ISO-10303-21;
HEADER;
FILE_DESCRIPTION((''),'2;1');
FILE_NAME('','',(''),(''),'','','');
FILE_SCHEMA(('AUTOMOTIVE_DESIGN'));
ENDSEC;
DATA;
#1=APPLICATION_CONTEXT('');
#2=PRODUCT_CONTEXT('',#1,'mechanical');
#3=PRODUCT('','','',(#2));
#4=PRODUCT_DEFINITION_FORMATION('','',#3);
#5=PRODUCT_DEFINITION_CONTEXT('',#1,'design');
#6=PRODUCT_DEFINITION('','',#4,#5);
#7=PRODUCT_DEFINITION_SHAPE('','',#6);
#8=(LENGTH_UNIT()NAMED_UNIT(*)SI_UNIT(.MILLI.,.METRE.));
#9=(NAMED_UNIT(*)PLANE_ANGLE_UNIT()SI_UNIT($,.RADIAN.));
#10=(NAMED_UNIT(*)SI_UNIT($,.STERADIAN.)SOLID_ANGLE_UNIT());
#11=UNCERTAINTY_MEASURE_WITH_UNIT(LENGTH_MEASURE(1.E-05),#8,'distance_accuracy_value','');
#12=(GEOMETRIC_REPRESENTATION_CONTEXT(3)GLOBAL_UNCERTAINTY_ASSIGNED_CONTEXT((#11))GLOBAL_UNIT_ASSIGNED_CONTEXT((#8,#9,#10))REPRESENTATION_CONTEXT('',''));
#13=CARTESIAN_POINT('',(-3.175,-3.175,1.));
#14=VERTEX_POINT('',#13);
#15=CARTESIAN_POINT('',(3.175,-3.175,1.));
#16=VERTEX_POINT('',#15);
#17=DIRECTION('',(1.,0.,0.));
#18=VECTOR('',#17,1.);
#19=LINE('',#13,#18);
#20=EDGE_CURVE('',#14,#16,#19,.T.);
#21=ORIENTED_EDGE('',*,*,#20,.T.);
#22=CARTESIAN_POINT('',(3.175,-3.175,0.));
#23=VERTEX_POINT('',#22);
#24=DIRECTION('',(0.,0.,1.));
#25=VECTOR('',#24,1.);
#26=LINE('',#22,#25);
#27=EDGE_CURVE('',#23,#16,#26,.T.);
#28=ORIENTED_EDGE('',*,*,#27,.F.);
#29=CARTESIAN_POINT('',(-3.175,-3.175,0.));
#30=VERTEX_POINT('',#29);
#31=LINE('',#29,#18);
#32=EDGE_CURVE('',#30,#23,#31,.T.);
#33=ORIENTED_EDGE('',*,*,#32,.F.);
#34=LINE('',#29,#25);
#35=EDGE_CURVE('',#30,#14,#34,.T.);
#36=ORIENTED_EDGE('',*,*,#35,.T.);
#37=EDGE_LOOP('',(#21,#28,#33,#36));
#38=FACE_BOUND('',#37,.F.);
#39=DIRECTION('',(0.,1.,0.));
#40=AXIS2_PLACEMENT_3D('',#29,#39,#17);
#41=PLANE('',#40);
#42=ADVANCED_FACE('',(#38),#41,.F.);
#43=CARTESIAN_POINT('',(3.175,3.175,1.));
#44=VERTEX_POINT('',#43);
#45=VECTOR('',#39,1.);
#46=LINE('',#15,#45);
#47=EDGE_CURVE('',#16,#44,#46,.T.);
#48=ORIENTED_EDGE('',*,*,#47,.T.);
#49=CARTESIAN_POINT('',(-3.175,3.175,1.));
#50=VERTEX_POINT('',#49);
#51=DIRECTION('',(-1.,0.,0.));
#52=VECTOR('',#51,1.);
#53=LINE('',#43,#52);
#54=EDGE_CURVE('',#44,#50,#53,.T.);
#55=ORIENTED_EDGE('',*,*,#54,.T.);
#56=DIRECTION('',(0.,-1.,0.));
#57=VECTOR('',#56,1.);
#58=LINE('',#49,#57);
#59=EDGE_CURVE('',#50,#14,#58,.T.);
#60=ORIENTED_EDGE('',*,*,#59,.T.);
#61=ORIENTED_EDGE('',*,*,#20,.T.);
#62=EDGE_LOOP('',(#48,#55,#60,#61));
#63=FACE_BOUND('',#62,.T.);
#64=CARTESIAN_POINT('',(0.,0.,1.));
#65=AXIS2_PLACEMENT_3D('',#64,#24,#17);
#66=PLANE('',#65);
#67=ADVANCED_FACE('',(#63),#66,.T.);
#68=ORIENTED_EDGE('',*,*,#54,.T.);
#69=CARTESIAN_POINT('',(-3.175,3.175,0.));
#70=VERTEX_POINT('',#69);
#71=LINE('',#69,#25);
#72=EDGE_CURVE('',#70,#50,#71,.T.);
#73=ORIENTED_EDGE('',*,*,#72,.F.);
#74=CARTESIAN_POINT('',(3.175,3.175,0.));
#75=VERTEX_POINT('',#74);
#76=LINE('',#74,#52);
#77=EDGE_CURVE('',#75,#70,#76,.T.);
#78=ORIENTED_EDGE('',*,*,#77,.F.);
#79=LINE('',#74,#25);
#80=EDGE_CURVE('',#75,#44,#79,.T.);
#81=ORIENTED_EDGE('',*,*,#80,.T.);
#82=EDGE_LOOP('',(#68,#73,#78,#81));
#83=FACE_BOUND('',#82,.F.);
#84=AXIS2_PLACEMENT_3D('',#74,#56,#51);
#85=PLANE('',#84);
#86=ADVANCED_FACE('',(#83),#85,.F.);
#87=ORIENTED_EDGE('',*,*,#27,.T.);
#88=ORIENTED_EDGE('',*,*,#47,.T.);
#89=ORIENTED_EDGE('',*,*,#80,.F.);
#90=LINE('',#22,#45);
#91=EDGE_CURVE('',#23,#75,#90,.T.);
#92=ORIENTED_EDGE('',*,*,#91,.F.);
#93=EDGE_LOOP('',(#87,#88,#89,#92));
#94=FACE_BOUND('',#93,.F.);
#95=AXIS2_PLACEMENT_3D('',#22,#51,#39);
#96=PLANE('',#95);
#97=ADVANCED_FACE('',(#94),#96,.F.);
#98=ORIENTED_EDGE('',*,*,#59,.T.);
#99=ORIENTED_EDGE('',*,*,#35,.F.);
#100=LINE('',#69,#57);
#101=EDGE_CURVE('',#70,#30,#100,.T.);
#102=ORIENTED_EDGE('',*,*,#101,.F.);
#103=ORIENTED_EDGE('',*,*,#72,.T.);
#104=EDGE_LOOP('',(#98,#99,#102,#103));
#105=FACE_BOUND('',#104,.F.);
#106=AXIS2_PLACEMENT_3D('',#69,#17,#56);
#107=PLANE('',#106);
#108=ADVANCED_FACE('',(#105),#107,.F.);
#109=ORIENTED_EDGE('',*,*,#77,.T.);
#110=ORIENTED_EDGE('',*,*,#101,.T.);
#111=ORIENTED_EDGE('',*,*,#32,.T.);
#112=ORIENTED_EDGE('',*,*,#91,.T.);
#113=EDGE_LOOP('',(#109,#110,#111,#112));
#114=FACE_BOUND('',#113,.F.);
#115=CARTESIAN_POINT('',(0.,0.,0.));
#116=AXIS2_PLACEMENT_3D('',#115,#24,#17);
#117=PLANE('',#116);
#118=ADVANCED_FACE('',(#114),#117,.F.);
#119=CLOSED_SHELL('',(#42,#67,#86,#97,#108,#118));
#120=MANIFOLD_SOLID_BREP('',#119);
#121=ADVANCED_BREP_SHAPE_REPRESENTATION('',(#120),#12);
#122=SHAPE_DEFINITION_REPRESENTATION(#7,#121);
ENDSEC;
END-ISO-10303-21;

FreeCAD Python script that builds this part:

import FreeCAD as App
import Part
import Sketcher
from FreeCAD import Vector
Q = App.Units.Quantity

doc = App.newDocument("Part")
body = doc.addObject("PartDesign::Body", "Body")

sketch1 = body.newObject("Sketcher::SketchObject", "Sketch")
sketch1.AttachmentSupport = (doc.getObject("XY_Plane"), [""])
sketch1.MapMode = "FlatFace"
sketch1.addGeometry([
    Part.LineSegment(Vector(-3.175, -3.175, 0), Vector(3.175, -3.175, 0)),
    Part.LineSegment(Vector(3.175, -3.175, 0), Vector(3.175, 3.175, 0)),
    Part.LineSegment(Vector(3.175, 3.175, 0), Vector(-3.175, 3.175, 0)),
    Part.LineSegment(Vector(-3.175, 3.175, 0), Vector(-3.175, -3.175, 0)),
], False)
sketch1.addConstraint([
    Sketcher.Constraint("Coincident", 0, 2, 1, 1),
    Sketcher.Constraint("Coincident", 1, 2, 2, 1),
    Sketcher.Constraint("Coincident", 2, 2, 3, 1),
    Sketcher.Constraint("Coincident", 3, 2, 0, 1),
    Sketcher.Constraint("Horizontal", 0),
    Sketcher.Constraint("Vertical", 1),
    Sketcher.Constraint("Horizontal", 2),
    Sketcher.Constraint("Vertical", 3),
    Sketcher.Constraint("Symmetric", 0, 2, 2, 2, -1, 1),
    Sketcher.Constraint("Equal", 2, 1),
    Sketcher.Constraint("DistanceX", 0, 1, 0, 2, Q("6.35 mm")),
])
pad1 = body.newObject("PartDesign::Pad", "Pad")
pad1.Profile = sketch1
pad1.Length = 1

doc.recompute()
